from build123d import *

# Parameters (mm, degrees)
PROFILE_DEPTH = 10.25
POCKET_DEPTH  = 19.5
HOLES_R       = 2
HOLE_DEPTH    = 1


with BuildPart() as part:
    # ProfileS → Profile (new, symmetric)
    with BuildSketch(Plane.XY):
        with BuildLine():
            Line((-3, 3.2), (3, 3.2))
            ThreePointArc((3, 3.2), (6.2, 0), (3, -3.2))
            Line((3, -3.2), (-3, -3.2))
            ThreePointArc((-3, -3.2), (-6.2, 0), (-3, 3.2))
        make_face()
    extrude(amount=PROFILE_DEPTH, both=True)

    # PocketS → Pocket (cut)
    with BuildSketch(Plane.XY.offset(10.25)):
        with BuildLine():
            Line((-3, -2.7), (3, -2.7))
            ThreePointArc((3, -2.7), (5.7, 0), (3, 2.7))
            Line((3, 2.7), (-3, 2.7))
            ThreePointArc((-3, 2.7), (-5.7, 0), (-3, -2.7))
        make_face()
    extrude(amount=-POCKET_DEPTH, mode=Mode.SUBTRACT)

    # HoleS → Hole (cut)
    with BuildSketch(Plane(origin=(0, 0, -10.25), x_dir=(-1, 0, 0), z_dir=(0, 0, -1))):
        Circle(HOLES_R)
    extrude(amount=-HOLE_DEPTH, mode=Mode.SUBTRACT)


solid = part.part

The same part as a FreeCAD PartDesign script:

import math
import FreeCAD as App
import Part
import Sketcher
Q = App.Units.Quantity

doc = App.newDocument("Part")
body = doc.addObject("PartDesign::Body", "Body")

# Sketch on XY plane
sketch1 = body.newObject("Sketcher::SketchObject", "Sketch")
sketch1.AttachmentSupport = (doc.getObject("XY_Plane"), [""])
sketch1.MapMode = "FlatFace"
sketch1.addGeometry([
    Part.LineSegment(App.Vector(3, 3.2, 0), App.Vector(-3, 3.2, 0)),
    Part.ArcOfCircle(Part.Circle(App.Vector(-3, 0, 0), App.Vector(0, 0, 1), 3.2), math.radians(90), math.radians(270)),
    Part.LineSegment(App.Vector(-3, -3.2, 0), App.Vector(3, -3.2, 0)),
    Part.ArcOfCircle(Part.Circle(App.Vector(3, 0, 0), App.Vector(0, 0, 1), 3.2), math.radians(-90), math.radians(90)),
], False)
sketch1.addConstraint([
    Sketcher.Constraint("Tangent", 0, 2, 1, 1),
    Sketcher.Constraint("Tangent", 1, 2, 2, 1),
    Sketcher.Constraint("Tangent", 2, 2, 3, 1),
    Sketcher.Constraint("Tangent", 3, 2, 0, 1),
    Sketcher.Constraint("Horizontal", 0),
    Sketcher.Constraint("Horizontal", 2),
    Sketcher.Constraint("Symmetric", 1, 3, 3, 3, -1, 1),
    Sketcher.Constraint("Radius", 1, Q("3.2 mm")),
    Sketcher.Constraint("DistanceX", 0, 2, 0, 1, Q("6 mm")),
])
pad1 = body.newObject("PartDesign::Pad", "Pad")
pad1.Profile = sketch1
pad1.Length = 20.5
pad1.Midplane = True

# Sketch on XY plane
sketch2 = body.newObject("Sketcher::SketchObject", "Sketch001")
sketch2.AttachmentSupport = (doc.getObject("XY_Plane"), [""])
sketch2.MapMode = "FlatFace"
sketch2.AttachmentOffset = App.Placement(App.Vector(0, 0, 10.25), App.Rotation())
sketch2.addGeometry([
    Part.LineSegment(App.Vector(-3, -2.7, 0), App.Vector(3, -2.7, 0)),
    Part.ArcOfCircle(Part.Circle(App.Vector(3, 0, 0), App.Vector(0, 0, 1), 2.7), math.radians(-90), math.radians(90)),
    Part.LineSegment(App.Vector(3, 2.7, 0), App.Vector(-3, 2.7, 0)),
    Part.ArcOfCircle(Part.Circle(App.Vector(-3, 0, 0), App.Vector(0, 0, 1), 2.7), math.radians(90), math.radians(270)),
], False)
sketch2.addConstraint([
    Sketcher.Constraint("Tangent", 0, 2, 1, 1),
    Sketcher.Constraint("Tangent", 1, 2, 2, 1),
    Sketcher.Constraint("Tangent", 2, 2, 3, 1),
    Sketcher.Constraint("Tangent", 3, 2, 0, 1),
    Sketcher.Constraint("Horizontal", 0),
    Sketcher.Constraint("Horizontal", 2),
    Sketcher.Constraint("Symmetric", 1, 3, 3, 3, -1, 1),
    Sketcher.Constraint("Radius", 1, Q("2.7 mm")),
    Sketcher.Constraint("DistanceX", 0, 1, 0, 2, Q("6 mm")),
])
pocket1 = body.newObject("PartDesign::Pocket", "Pocket")
pocket1.Profile = sketch2
pocket1.Length = 19.5

# Sketch on XY plane
sketch3 = body.newObject("Sketcher::SketchObject", "Sketch002")
sketch3.AttachmentSupport = (doc.getObject("XY_Plane"), [""])
sketch3.MapMode = "FlatFace"
sketch3.AttachmentOffset = App.Placement(App.Vector(0, 0, -10.25), App.Rotation())
sketch3.addGeometry(Part.Circle(App.Vector(0, 0, 0), App.Vector(0, 0, 1), 2), False)
sketch3.addConstraint([
    Sketcher.Constraint("Coincident", 0, 3, -1, 1),
    Sketcher.Constraint("Diameter", 0, Q("4 mm")),
])
pocket2 = body.newObject("PartDesign::Pocket", "Pocket001")
pocket2.Profile = sketch3
pocket2.Length = 1
pocket2.Reversed = True

doc.recompute()
